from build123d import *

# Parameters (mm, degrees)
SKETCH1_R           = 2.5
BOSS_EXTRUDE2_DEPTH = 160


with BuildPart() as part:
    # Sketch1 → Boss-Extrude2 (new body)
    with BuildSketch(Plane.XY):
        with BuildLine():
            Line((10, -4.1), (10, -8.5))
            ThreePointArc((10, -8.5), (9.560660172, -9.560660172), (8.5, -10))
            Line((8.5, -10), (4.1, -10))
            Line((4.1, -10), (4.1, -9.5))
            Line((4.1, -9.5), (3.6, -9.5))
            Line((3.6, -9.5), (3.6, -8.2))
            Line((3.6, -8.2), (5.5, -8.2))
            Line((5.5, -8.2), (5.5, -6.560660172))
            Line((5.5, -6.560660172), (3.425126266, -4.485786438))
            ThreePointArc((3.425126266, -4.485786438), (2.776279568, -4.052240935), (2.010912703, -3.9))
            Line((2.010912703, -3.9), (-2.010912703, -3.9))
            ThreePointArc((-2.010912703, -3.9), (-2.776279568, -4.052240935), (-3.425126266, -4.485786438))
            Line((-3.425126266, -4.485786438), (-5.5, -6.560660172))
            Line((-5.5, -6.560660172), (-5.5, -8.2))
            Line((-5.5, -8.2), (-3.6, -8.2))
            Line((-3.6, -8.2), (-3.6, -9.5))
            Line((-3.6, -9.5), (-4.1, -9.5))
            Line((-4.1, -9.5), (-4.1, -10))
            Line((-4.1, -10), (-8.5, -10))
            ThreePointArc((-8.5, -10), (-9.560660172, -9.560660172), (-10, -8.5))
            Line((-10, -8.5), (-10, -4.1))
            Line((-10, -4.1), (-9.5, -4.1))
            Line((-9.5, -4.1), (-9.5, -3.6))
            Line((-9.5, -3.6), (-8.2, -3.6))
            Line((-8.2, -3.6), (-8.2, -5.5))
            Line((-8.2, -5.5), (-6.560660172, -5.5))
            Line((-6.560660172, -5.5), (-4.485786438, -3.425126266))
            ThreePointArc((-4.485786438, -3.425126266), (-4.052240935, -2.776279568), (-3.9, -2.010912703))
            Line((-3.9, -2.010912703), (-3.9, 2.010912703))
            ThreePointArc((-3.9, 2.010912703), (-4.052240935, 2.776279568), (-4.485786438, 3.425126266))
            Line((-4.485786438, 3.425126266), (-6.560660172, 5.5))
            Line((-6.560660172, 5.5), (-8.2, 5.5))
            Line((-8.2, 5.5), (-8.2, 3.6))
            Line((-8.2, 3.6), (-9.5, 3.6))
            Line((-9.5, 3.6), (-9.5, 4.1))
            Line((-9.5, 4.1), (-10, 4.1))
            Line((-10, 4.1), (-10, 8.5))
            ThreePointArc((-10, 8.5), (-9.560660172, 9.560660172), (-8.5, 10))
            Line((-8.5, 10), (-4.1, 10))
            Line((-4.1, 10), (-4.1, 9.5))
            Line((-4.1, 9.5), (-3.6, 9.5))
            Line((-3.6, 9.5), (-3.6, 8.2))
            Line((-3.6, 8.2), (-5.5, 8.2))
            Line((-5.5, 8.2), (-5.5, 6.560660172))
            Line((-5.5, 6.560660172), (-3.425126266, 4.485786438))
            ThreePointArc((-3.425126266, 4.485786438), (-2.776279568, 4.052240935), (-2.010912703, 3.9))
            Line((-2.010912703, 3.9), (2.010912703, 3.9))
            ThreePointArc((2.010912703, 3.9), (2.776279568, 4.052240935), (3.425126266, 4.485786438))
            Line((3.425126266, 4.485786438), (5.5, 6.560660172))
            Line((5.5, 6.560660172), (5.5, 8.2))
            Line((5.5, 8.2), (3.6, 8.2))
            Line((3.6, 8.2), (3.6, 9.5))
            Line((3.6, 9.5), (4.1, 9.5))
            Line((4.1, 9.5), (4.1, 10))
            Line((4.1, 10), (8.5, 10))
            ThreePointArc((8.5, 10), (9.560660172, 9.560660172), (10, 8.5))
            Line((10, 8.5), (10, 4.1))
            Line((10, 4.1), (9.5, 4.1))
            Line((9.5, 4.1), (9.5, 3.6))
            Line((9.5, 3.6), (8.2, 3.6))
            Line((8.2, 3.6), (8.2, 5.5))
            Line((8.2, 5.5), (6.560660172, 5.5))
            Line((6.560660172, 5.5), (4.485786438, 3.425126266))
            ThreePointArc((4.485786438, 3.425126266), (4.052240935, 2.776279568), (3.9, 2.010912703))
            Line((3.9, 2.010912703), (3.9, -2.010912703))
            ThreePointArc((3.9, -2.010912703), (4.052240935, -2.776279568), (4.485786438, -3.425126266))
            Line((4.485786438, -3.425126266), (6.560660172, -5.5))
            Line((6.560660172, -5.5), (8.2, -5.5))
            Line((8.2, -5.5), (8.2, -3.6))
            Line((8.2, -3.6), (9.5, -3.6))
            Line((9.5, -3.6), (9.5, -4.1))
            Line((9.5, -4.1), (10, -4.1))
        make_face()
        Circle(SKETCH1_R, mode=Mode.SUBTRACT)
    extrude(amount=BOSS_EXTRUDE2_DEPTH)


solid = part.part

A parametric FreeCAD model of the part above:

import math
import FreeCAD as App
import Part
import Sketcher

V = App.Vector

doc = App.newDocument("Part")
body = doc.addObject("PartDesign::Body", "Body")

# Sketch on XY plane
sketch1 = body.newObject("Sketcher::SketchObject", "Sketch")
sketch1.AttachmentSupport = (doc.getObject("XY_Plane"), [""])
sketch1.MapMode = "FlatFace"
sketch1.addGeometry([
    Part.LineSegment(V(10, -8.5, 0), V(10, -4.1, 0)),  # 0
    Part.LineSegment(V(10, -4.1, 0), V(9.5, -4.1, 0)),  # 1
    Part.LineSegment(V(9.5, -4.1, 0), V(9.5, -3.6, 0)),  # 2
    Part.LineSegment(V(9.5, -3.6, 0), V(8.2, -3.6, 0)),  # 3
    Part.LineSegment(V(8.2, -3.6, 0), V(8.2, -5.5, 0)),  # 4
    Part.LineSegment(V(8.2, -5.5, 0), V(6.56, -5.5, 0)),  # 5
    Part.LineSegment(V(6.56, -5.5, 0), V(4.49, -3.43, 0)),  # 6
    Part.ArcOfCircle(Part.Circle(V(5.9, -2.01, 0), V(0, 0, 1), 2), math.radians(180), math.radians(225)),  # 7
    Part.LineSegment(V(3.9, -2.01, 0), V(3.9, 2.01, 0)),  # 8
    Part.ArcOfCircle(Part.Circle(V(5.9, 2.01, 0), V(0, 0, 1), 2), math.radians(135), math.radians(180)),  # 9
    Part.LineSegment(V(4.49, 3.43, 0), V(6.56, 5.5, 0)),  # 10
    Part.LineSegment(V(6.56, 5.5, 0), V(8.2, 5.5, 0)),  # 11
    Part.LineSegment(V(8.2, 5.5, 0), V(8.2, 3.6, 0)),  # 12
    Part.LineSegment(V(8.2, 3.6, 0), V(9.5, 3.6, 0)),  # 13
    Part.LineSegment(V(9.5, 3.6, 0), V(9.5, 4.1, 0)),  # 14
    Part.LineSegment(V(9.5, 4.1, 0), V(10, 4.1, 0)),  # 15
    Part.LineSegment(V(10, 4.1, 0), V(10, 8.5, 0)),  # 16
    Part.ArcOfCircle(Part.Circle(V(8.5, 8.5, 0), V(0, 0, 1), 1.5), math.radians(0), math.radians(90)),  # 17
    Part.LineSegment(V(8.5, 10, 0), V(4.1, 10, 0)),  # 18
    Part.LineSegment(V(4.1, 10, 0), V(4.1, 9.5, 0)),  # 19
    Part.LineSegment(V(4.1, 9.5, 0), V(3.6, 9.5, 0)),  # 20
    Part.LineSegment(V(3.6, 9.5, 0), V(3.6, 8.2, 0)),  # 21
    Part.LineSegment(V(3.6, 8.2, 0), V(5.5, 8.2, 0)),  # 22
    Part.LineSegment(V(5.5, 8.2, 0), V(5.5, 6.56, 0)),  # 23
    Part.LineSegment(V(5.5, 6.56, 0), V(3.43, 4.49, 0)),  # 24
    Part.ArcOfCircle(Part.Circle(V(2.01, 5.9, 0), V(0, 0, 1), 2), math.radians(-90), math.radians(-45)),  # 25
    Part.LineSegment(V(2.01, 3.9, 0), V(-2.01, 3.9, 0)),  # 26
    Part.ArcOfCircle(Part.Circle(V(-2.01, 5.9, 0), V(0, 0, 1), 2), math.radians(-135), math.radians(-90)),  # 27
    Part.LineSegment(V(-3.43, 4.49, 0), V(-5.5, 6.56, 0)),  # 28
    Part.LineSegment(V(-5.5, 6.56, 0), V(-5.5, 8.2, 0)),  # 29
    Part.LineSegment(V(-5.5, 8.2, 0), V(-3.6, 8.2, 0)),  # 30
    Part.LineSegment(V(-3.6, 8.2, 0), V(-3.6, 9.5, 0)),  # 31
    Part.LineSegment(V(-3.6, 9.5, 0), V(-4.1, 9.5, 0)),  # 32
    Part.LineSegment(V(-4.1, 9.5, 0), V(-4.1, 10, 0)),  # 33
    Part.LineSegment(V(-4.1, 10, 0), V(-8.5, 10, 0)),  # 34
    Part.ArcOfCircle(Part.Circle(V(-8.5, 8.5, 0), V(0, 0, 1), 1.5), math.radians(90), math.radians(180)),  # 35
    Part.LineSegment(V(-10, 8.5, 0), V(-10, 4.1, 0)),  # 36
    Part.LineSegment(V(-10, 4.1, 0), V(-9.5, 4.1, 0)),  # 37
    Part.LineSegment(V(-9.5, 4.1, 0), V(-9.5, 3.6, 0)),  # 38
    Part.LineSegment(V(-9.5, 3.6, 0), V(-8.2, 3.6, 0)),  # 39
    Part.LineSegment(V(-8.2, 3.6, 0), V(-8.2, 5.5, 0)),  # 40
    Part.LineSegment(V(-8.2, 5.5, 0), V(-6.56, 5.5, 0)),  # 41
    Part.LineSegment(V(-6.56, 5.5, 0), V(-4.49, 3.43, 0)),  # 42
    Part.ArcOfCircle(Part.Circle(V(-5.9, 2.01, 0), V(0, 0, 1), 2), math.radians(0), math.radians(45)),  # 43
    Part.LineSegment(V(-3.9, 2.01, 0), V(-3.9, -2.01, 0)),  # 44
    Part.ArcOfCircle(Part.Circle(V(-5.9, -2.01, 0), V(0, 0, 1), 2), math.radians(-45), math.radians(0)),  # 45
    Part.LineSegment(V(-4.49, -3.43, 0), V(-6.56, -5.5, 0)),  # 46
    Part.LineSegment(V(-6.56, -5.5, 0), V(-8.2, -5.5, 0)),  # 47
    Part.LineSegment(V(-8.2, -5.5, 0), V(-8.2, -3.6, 0)),  # 48
    Part.LineSegment(V(-8.2, -3.6, 0), V(-9.5, -3.6, 0)),  # 49
    Part.LineSegment(V(-9.5, -3.6, 0), V(-9.5, -4.1, 0)),  # 50
    Part.LineSegment(V(-9.5, -4.1, 0), V(-10, -4.1, 0)),  # 51
    Part.LineSegment(V(-10, -4.1, 0), V(-10, -8.5, 0)),  # 52
    Part.ArcOfCircle(Part.Circle(V(-8.5, -8.5, 0), V(0, 0, 1), 1.5), math.radians(180), math.radians(270)),  # 53
    Part.LineSegment(V(-8.5, -10, 0), V(-4.1, -10, 0)),  # 54
    Part.LineSegment(V(-4.1, -10, 0), V(-4.1, -9.5, 0)),  # 55
    Part.LineSegment(V(-4.1, -9.5, 0), V(-3.6, -9.5, 0)),  # 56
    Part.LineSegment(V(-3.6, -9.5, 0), V(-3.6, -8.2, 0)),  # 57
    Part.LineSegment(V(-3.6, -8.2, 0), V(-5.5, -8.2, 0)),  # 58
    Part.LineSegment(V(-5.5, -8.2, 0), V(-5.5, -6.56, 0)),  # 59
    Part.LineSegment(V(-5.5, -6.56, 0), V(-3.43, -4.49, 0)),  # 60
    Part.ArcOfCircle(Part.Circle(V(-2.01, -5.9, 0), V(0, 0, 1), 2), math.radians(90), math.radians(135)),  # 61
    Part.LineSegment(V(-2.01, -3.9, 0), V(2.01, -3.9, 0)),  # 62
    Part.ArcOfCircle(Part.Circle(V(2.01, -5.9, 0), V(0, 0, 1), 2), math.radians(45), math.radians(90)),  # 63
    Part.LineSegment(V(3.43, -4.49, 0), V(5.5, -6.56, 0)),  # 64
    Part.LineSegment(V(5.5, -6.56, 0), V(5.5, -8.2, 0)),  # 65
    Part.LineSegment(V(5.5, -8.2, 0), V(3.6, -8.2, 0)),  # 66
    Part.LineSegment(V(3.6, -8.2, 0), V(3.6, -9.5, 0)),  # 67
    Part.LineSegment(V(3.6, -9.5, 0), V(4.1, -9.5, 0)),  # 68
    Part.LineSegment(V(4.1, -9.5, 0), V(4.1, -10, 0)),  # 69
    Part.LineSegment(V(4.1, -10, 0), V(8.5, -10, 0)),  # 70
    Part.ArcOfCircle(Part.Circle(V(8.5, -8.5, 0), V(0, 0, 1), 1.5), math.radians(-90), math.radians(0)),  # 71
    Part.Circle(V(0, 0, 0), V(0, 0, 1), 2.5),  # 72
], False)
sketch1.addConstraint([
    Sketcher.Constraint("Coincident", 0, 2, 1, 1),
    Sketcher.Constraint("Coincident", 1, 2, 2, 1),
    Sketcher.Constraint("Coincident", 2, 2, 3, 1),
    Sketcher.Constraint("Coincident", 3, 2, 4, 1),
    Sketcher.Constraint("Coincident", 4, 2, 5, 1),
    Sketcher.Constraint("Coincident", 5, 2, 6, 1),
    Sketcher.Constraint("Tangent", 6, 2, 7, 2),
    Sketcher.Constraint("Tangent", 7, 1, 8, 1),
    Sketcher.Constraint("Tangent", 8, 2, 9, 2),
    Sketcher.Constraint("Tangent", 9, 1, 10, 1),
    Sketcher.Constraint("Coincident", 10, 2, 11, 1),
    Sketcher.Constraint("Coincident", 11, 2, 12, 1),
    Sketcher.Constraint("Coincident", 12, 2, 13, 1),
    Sketcher.Constraint("Coincident", 13, 2, 14, 1),
    Sketcher.Constraint("Coincident", 14, 2, 15, 1),
    Sketcher.Constraint("Coincident", 15, 2, 16, 1),
    Sketcher.Constraint("Tangent", 16, 2, 17, 1),
    Sketcher.Constraint("Tangent", 17, 2, 18, 1),
    Sketcher.Constraint("Coincident", 18, 2, 19, 1),
    Sketcher.Constraint("Coincident", 19, 2, 20, 1),
    Sketcher.Constraint("Coincident", 20, 2, 21, 1),
    Sketcher.Constraint("Coincident", 21, 2, 22, 1),
    Sketcher.Constraint("Coincident", 22, 2, 23, 1),
    Sketcher.Constraint("Coincident", 23, 2, 24, 1),
    Sketcher.Constraint("Tangent", 24, 2, 25, 2),
    Sketcher.Constraint("Tangent", 25, 1, 26, 1),
    Sketcher.Constraint("Tangent", 26, 2, 27, 2),
    Sketcher.Constraint("Tangent", 27, 1, 28, 1),
    Sketcher.Constraint("Coincident", 28, 2, 29, 1),
    Sketcher.Constraint("Coincident", 29, 2, 30, 1),
    Sketcher.Constraint("Coincident", 30, 2, 31, 1),
    Sketcher.Constraint("Coincident", 31, 2, 32, 1),
    Sketcher.Constraint("Coincident", 32, 2, 33, 1),
    Sketcher.Constraint("Coincident", 33, 2, 34, 1),
    Sketcher.Constraint("Tangent", 34, 2, 35, 1),
    Sketcher.Constraint("Tangent", 35, 2, 36, 1),
    Sketcher.Constraint("Coincident", 36, 2, 37, 1),
    Sketcher.Constraint("Coincident", 37, 2, 38, 1),
    Sketcher.Constraint("Coincident", 38, 2, 39, 1),
    Sketcher.Constraint("Coincident", 39, 2, 40, 1),
    Sketcher.Constraint("Coincident", 40, 2, 41, 1),
    Sketcher.Constraint("Coincident", 41, 2, 42, 1),
    Sketcher.Constraint("Tangent", 42, 2, 43, 2),
    Sketcher.Constraint("Tangent", 43, 1, 44, 1),
    Sketcher.Constraint("Tangent", 44, 2, 45, 2),
    Sketcher.Constraint("Tangent", 45, 1, 46, 1),
    Sketcher.Constraint("Coincident", 46, 2, 47, 1),
    Sketcher.Constraint("Coincident", 47, 2, 48, 1),
    Sketcher.Constraint("Coincident", 48, 2, 49, 1),
    Sketcher.Constraint("Coincident", 49, 2, 50, 1),
    Sketcher.Constraint("Coincident", 50, 2, 51, 1),
    Sketcher.Constraint("Coincident", 51, 2, 52, 1),
    Sketcher.Constraint("Tangent", 52, 2, 53, 1),
    Sketcher.Constraint("Tangent", 53, 2, 54, 1),
    Sketcher.Constraint("Coincident", 54, 2, 55, 1),
    Sketcher.Constraint("Coincident", 55, 2, 56, 1),
    Sketcher.Constraint("Coincident", 56, 2, 57, 1),
    Sketcher.Constraint("Coincident", 57, 2, 58, 1),
    Sketcher.Constraint("Coincident", 58, 2, 59, 1),
    Sketcher.Constraint("Coincident", 59, 2, 60, 1),
    Sketcher.Constraint("Tangent", 60, 2, 61, 2),
    Sketcher.Constraint("Tangent", 61, 1, 62, 1),
    Sketcher.Constraint("Tangent", 62, 2, 63, 2),
    Sketcher.Constraint("Tangent", 63, 1, 64, 1),
    Sketcher.Constraint("Coincident", 64, 2, 65, 1),
    Sketcher.Constraint("Coincident", 65, 2, 66, 1),
    Sketcher.Constraint("Coincident", 66, 2, 67, 1),
    Sketcher.Constraint("Coincident", 67, 2, 68, 1),
    Sketcher.Constraint("Coincident", 68, 2, 69, 1),
    Sketcher.Constraint("Coincident", 69, 2, 70, 1),
    Sketcher.Constraint("Tangent", 70, 2, 71, 1),
    Sketcher.Constraint("Tangent", 71, 2, 0, 1),
    Sketcher.Constraint("Vertical", 0),
    Sketcher.Constraint("Horizontal", 1),
    Sketcher.Constraint("Vertical", 2),
    Sketcher.Constraint("Horizontal", 3),
    Sketcher.Constraint("Vertical", 4),
    Sketcher.Constraint("Horizontal", 5),
    Sketcher.Constraint("Vertical", 8),
    Sketcher.Constraint("Horizontal", 11),
    Sketcher.Constraint("Vertical", 12),
    Sketcher.Constraint("Horizontal", 13),
    Sketcher.Constraint("Vertical", 14),
    Sketcher.Constraint("Horizontal", 15),
    Sketcher.Constraint("Vertical", 16),
    Sketcher.Constraint("Horizontal", 18),
    Sketcher.Constraint("Vertical", 19),
    Sketcher.Constraint("Horizontal", 20),
    Sketcher.Constraint("Vertical", 21),
    Sketcher.Constraint("Horizontal", 22),
    Sketcher.Constraint("Vertical", 23),
    Sketcher.Constraint("Horizontal", 26),
    Sketcher.Constraint("Vertical", 29),
    Sketcher.Constraint("Horizontal", 30),
    Sketcher.Constraint("Vertical", 31),
    Sketcher.Constraint("Horizontal", 32),
    Sketcher.Constraint("Vertical", 33),
    Sketcher.Constraint("Horizontal", 34),
    Sketcher.Constraint("Vertical", 36),
    Sketcher.Constraint("Horizontal", 37),
    Sketcher.Constraint("Vertical", 38),
    Sketcher.Constraint("Horizontal", 39),
    Sketcher.Constraint("Vertical", 40),
    Sketcher.Constraint("Horizontal", 41),
    Sketcher.Constraint("Vertical", 44),
    Sketcher.Constraint("Horizontal", 47),
    Sketcher.Constraint("Vertical", 48),
    Sketcher.Constraint("Horizontal", 49),
    Sketcher.Constraint("Vertical", 50),
    Sketcher.Constraint("Horizontal", 51),
    Sketcher.Constraint("Vertical", 52),
    Sketcher.Constraint("Horizontal", 54),
    Sketcher.Constraint("Vertical", 55),
    Sketcher.Constraint("Horizontal", 56),
    Sketcher.Constraint("Vertical", 57),
    Sketcher.Constraint("Horizontal", 58),
    Sketcher.Constraint("Vertical", 59),
    Sketcher.Constraint("Horizontal", 62),
    Sketcher.Constraint("Vertical", 65),
    Sketcher.Constraint("Horizontal", 66),
    Sketcher.Constraint("Vertical", 67),
    Sketcher.Constraint("Horizontal", 68),
    Sketcher.Constraint("Vertical", 69),
    Sketcher.Constraint("Horizontal", 70),
    Sketcher.Constraint("Coincident", 72, 3, -1, 1),
    Sketcher.Constraint("Equal", 7, 9),
    Sketcher.Constraint("Equal", 9, 25),
    Sketcher.Constraint("Equal", 25, 27),
    Sketcher.Constraint("Equal", 17, 35),
    Sketcher.Constraint("Equal", 27, 43),
    Sketcher.Constraint("Equal", 43, 45),
    Sketcher.Constraint("Equal", 35, 53),
    Sketcher.Constraint("Equal", 45, 61),
    Sketcher.Constraint("Equal", 61, 63),
    Sketcher.Constraint("Equal", 53, 71),
    Sketcher.Constraint("Symmetric", 7, 3, 43, 3, -1, 1),
    Sketcher.Constraint("Symmetric", 17, 3, 53, 3, -1, 1),
    Sketcher.Constraint("Symmetric", 25, 3, 61, 3, -1, 1),
    Sketcher.Constraint("Symmetric", 35, 3, 71, 3, -1, 1),
    Sketcher.Constraint("Symmetric", 1, 2, 37, 2, -1, 1),
    Sketcher.Constraint("Symmetric", 3, 2, 39, 2, -1, 1),
    Sketcher.Constraint("Symmetric", 5, 2, 41, 2, -1, 1),
    Sketcher.Constraint("Symmetric", 9, 1, 45, 1, -1, 1),
    Sketcher.Constraint("Symmetric", 11, 2, 47, 2, -1, 1),
    Sketcher.Constraint("Symmetric", 13, 2, 49, 2, -1, 1),
    Sketcher.Constraint("Symmetric", 19, 2, 55, 2, -1, 1),
    Sketcher.Constraint("Symmetric", 21, 2, 57, 2, -1, 1),
    Sketcher.Constraint("Symmetric", 23, 2, 59, 2, -1, 1),
    Sketcher.Constraint("Symmetric", 27, 1, 63, 1, -1, 1),
    Sketcher.Constraint("Symmetric", 29, 2, 65, 2, -1, 1),
    Sketcher.Constraint("Symmetric", 31, 2, 67, 2, -1, 1),
    Sketcher.Constraint("Symmetric", 17, 3, 35, 3, -2),
    Sketcher.Constraint("Symmetric", 24, 2, 27, 1, -2),
    Sketcher.Constraint("Symmetric", 22, 2, 29, 2, -2),
    Sketcher.Constraint("Symmetric", 20, 2, 31, 2, -2),
    Sketcher.Constraint("Symmetric", 14, 2, 37, 2, -2),
    Sketcher.Constraint("Symmetric", 12, 2, 39, 2, -2),
    Sketcher.Constraint("Symmetric", 10, 2, 41, 2, -2),
    Sketcher.Constraint("Perpendicular", 6, 10),
    Sketcher.Constraint("Parallel", 10, 24),
    Sketcher.Constraint("Perpendicular", 24, 28),
    Sketcher.Constraint("Horizontal", 1, 2, 50, 2),
    Sketcher.Constraint("Vertical", 33, 2, 54, 2),
    Sketcher.Constraint("Vertical", 19, 2, 68, 2),
    Sketcher.Constraint("Equal", 15, 20),
    Sketcher.Constraint("Equal", 70, 0),
    Sketcher.Constraint("Equal", 68, 2),
    Sketcher.Constraint("Equal", 66, 4),
    Sketcher.Constraint("Equal", 62, 8),
    Sketcher.Constraint("Equal", 14, 19),
    Sketcher.Constraint("Equal", 49, 21),
    Sketcher.Constraint("Equal", 47, 23),
    Sketcher.Constraint("Equal", 10, 24),
    Sketcher.Constraint("Diameter", 72, 5.0),
    Sketcher.Constraint("Radius", 7, 2.0),
    Sketcher.Constraint("Radius", 17, 1.5),
    Sketcher.Constraint("DistanceX", 1, 2, 1, 1, 0.5),
    Sketcher.Constraint("DistanceX", 3, 2, 3, 1, 1.3),
    Sketcher.Constraint("DistanceX", 18, 2, 18, 1, 4.4),
    Sketcher.Constraint("DistanceX", 22, 1, 22, 2, 1.9),
    Sketcher.Constraint("DistanceX", -1, 1, 0, 2, 10.0),
    Sketcher.Constraint("DistanceX", -1, 1, 7, 3, 5.9),
    Sketcher.Constraint("DistanceX", 5, 2, 5, 1, 1.63934),
])
pad1 = body.newObject("PartDesign::Pad", "Pad")
pad1.Profile = sketch1
pad1.Length = 160

doc.recompute()
